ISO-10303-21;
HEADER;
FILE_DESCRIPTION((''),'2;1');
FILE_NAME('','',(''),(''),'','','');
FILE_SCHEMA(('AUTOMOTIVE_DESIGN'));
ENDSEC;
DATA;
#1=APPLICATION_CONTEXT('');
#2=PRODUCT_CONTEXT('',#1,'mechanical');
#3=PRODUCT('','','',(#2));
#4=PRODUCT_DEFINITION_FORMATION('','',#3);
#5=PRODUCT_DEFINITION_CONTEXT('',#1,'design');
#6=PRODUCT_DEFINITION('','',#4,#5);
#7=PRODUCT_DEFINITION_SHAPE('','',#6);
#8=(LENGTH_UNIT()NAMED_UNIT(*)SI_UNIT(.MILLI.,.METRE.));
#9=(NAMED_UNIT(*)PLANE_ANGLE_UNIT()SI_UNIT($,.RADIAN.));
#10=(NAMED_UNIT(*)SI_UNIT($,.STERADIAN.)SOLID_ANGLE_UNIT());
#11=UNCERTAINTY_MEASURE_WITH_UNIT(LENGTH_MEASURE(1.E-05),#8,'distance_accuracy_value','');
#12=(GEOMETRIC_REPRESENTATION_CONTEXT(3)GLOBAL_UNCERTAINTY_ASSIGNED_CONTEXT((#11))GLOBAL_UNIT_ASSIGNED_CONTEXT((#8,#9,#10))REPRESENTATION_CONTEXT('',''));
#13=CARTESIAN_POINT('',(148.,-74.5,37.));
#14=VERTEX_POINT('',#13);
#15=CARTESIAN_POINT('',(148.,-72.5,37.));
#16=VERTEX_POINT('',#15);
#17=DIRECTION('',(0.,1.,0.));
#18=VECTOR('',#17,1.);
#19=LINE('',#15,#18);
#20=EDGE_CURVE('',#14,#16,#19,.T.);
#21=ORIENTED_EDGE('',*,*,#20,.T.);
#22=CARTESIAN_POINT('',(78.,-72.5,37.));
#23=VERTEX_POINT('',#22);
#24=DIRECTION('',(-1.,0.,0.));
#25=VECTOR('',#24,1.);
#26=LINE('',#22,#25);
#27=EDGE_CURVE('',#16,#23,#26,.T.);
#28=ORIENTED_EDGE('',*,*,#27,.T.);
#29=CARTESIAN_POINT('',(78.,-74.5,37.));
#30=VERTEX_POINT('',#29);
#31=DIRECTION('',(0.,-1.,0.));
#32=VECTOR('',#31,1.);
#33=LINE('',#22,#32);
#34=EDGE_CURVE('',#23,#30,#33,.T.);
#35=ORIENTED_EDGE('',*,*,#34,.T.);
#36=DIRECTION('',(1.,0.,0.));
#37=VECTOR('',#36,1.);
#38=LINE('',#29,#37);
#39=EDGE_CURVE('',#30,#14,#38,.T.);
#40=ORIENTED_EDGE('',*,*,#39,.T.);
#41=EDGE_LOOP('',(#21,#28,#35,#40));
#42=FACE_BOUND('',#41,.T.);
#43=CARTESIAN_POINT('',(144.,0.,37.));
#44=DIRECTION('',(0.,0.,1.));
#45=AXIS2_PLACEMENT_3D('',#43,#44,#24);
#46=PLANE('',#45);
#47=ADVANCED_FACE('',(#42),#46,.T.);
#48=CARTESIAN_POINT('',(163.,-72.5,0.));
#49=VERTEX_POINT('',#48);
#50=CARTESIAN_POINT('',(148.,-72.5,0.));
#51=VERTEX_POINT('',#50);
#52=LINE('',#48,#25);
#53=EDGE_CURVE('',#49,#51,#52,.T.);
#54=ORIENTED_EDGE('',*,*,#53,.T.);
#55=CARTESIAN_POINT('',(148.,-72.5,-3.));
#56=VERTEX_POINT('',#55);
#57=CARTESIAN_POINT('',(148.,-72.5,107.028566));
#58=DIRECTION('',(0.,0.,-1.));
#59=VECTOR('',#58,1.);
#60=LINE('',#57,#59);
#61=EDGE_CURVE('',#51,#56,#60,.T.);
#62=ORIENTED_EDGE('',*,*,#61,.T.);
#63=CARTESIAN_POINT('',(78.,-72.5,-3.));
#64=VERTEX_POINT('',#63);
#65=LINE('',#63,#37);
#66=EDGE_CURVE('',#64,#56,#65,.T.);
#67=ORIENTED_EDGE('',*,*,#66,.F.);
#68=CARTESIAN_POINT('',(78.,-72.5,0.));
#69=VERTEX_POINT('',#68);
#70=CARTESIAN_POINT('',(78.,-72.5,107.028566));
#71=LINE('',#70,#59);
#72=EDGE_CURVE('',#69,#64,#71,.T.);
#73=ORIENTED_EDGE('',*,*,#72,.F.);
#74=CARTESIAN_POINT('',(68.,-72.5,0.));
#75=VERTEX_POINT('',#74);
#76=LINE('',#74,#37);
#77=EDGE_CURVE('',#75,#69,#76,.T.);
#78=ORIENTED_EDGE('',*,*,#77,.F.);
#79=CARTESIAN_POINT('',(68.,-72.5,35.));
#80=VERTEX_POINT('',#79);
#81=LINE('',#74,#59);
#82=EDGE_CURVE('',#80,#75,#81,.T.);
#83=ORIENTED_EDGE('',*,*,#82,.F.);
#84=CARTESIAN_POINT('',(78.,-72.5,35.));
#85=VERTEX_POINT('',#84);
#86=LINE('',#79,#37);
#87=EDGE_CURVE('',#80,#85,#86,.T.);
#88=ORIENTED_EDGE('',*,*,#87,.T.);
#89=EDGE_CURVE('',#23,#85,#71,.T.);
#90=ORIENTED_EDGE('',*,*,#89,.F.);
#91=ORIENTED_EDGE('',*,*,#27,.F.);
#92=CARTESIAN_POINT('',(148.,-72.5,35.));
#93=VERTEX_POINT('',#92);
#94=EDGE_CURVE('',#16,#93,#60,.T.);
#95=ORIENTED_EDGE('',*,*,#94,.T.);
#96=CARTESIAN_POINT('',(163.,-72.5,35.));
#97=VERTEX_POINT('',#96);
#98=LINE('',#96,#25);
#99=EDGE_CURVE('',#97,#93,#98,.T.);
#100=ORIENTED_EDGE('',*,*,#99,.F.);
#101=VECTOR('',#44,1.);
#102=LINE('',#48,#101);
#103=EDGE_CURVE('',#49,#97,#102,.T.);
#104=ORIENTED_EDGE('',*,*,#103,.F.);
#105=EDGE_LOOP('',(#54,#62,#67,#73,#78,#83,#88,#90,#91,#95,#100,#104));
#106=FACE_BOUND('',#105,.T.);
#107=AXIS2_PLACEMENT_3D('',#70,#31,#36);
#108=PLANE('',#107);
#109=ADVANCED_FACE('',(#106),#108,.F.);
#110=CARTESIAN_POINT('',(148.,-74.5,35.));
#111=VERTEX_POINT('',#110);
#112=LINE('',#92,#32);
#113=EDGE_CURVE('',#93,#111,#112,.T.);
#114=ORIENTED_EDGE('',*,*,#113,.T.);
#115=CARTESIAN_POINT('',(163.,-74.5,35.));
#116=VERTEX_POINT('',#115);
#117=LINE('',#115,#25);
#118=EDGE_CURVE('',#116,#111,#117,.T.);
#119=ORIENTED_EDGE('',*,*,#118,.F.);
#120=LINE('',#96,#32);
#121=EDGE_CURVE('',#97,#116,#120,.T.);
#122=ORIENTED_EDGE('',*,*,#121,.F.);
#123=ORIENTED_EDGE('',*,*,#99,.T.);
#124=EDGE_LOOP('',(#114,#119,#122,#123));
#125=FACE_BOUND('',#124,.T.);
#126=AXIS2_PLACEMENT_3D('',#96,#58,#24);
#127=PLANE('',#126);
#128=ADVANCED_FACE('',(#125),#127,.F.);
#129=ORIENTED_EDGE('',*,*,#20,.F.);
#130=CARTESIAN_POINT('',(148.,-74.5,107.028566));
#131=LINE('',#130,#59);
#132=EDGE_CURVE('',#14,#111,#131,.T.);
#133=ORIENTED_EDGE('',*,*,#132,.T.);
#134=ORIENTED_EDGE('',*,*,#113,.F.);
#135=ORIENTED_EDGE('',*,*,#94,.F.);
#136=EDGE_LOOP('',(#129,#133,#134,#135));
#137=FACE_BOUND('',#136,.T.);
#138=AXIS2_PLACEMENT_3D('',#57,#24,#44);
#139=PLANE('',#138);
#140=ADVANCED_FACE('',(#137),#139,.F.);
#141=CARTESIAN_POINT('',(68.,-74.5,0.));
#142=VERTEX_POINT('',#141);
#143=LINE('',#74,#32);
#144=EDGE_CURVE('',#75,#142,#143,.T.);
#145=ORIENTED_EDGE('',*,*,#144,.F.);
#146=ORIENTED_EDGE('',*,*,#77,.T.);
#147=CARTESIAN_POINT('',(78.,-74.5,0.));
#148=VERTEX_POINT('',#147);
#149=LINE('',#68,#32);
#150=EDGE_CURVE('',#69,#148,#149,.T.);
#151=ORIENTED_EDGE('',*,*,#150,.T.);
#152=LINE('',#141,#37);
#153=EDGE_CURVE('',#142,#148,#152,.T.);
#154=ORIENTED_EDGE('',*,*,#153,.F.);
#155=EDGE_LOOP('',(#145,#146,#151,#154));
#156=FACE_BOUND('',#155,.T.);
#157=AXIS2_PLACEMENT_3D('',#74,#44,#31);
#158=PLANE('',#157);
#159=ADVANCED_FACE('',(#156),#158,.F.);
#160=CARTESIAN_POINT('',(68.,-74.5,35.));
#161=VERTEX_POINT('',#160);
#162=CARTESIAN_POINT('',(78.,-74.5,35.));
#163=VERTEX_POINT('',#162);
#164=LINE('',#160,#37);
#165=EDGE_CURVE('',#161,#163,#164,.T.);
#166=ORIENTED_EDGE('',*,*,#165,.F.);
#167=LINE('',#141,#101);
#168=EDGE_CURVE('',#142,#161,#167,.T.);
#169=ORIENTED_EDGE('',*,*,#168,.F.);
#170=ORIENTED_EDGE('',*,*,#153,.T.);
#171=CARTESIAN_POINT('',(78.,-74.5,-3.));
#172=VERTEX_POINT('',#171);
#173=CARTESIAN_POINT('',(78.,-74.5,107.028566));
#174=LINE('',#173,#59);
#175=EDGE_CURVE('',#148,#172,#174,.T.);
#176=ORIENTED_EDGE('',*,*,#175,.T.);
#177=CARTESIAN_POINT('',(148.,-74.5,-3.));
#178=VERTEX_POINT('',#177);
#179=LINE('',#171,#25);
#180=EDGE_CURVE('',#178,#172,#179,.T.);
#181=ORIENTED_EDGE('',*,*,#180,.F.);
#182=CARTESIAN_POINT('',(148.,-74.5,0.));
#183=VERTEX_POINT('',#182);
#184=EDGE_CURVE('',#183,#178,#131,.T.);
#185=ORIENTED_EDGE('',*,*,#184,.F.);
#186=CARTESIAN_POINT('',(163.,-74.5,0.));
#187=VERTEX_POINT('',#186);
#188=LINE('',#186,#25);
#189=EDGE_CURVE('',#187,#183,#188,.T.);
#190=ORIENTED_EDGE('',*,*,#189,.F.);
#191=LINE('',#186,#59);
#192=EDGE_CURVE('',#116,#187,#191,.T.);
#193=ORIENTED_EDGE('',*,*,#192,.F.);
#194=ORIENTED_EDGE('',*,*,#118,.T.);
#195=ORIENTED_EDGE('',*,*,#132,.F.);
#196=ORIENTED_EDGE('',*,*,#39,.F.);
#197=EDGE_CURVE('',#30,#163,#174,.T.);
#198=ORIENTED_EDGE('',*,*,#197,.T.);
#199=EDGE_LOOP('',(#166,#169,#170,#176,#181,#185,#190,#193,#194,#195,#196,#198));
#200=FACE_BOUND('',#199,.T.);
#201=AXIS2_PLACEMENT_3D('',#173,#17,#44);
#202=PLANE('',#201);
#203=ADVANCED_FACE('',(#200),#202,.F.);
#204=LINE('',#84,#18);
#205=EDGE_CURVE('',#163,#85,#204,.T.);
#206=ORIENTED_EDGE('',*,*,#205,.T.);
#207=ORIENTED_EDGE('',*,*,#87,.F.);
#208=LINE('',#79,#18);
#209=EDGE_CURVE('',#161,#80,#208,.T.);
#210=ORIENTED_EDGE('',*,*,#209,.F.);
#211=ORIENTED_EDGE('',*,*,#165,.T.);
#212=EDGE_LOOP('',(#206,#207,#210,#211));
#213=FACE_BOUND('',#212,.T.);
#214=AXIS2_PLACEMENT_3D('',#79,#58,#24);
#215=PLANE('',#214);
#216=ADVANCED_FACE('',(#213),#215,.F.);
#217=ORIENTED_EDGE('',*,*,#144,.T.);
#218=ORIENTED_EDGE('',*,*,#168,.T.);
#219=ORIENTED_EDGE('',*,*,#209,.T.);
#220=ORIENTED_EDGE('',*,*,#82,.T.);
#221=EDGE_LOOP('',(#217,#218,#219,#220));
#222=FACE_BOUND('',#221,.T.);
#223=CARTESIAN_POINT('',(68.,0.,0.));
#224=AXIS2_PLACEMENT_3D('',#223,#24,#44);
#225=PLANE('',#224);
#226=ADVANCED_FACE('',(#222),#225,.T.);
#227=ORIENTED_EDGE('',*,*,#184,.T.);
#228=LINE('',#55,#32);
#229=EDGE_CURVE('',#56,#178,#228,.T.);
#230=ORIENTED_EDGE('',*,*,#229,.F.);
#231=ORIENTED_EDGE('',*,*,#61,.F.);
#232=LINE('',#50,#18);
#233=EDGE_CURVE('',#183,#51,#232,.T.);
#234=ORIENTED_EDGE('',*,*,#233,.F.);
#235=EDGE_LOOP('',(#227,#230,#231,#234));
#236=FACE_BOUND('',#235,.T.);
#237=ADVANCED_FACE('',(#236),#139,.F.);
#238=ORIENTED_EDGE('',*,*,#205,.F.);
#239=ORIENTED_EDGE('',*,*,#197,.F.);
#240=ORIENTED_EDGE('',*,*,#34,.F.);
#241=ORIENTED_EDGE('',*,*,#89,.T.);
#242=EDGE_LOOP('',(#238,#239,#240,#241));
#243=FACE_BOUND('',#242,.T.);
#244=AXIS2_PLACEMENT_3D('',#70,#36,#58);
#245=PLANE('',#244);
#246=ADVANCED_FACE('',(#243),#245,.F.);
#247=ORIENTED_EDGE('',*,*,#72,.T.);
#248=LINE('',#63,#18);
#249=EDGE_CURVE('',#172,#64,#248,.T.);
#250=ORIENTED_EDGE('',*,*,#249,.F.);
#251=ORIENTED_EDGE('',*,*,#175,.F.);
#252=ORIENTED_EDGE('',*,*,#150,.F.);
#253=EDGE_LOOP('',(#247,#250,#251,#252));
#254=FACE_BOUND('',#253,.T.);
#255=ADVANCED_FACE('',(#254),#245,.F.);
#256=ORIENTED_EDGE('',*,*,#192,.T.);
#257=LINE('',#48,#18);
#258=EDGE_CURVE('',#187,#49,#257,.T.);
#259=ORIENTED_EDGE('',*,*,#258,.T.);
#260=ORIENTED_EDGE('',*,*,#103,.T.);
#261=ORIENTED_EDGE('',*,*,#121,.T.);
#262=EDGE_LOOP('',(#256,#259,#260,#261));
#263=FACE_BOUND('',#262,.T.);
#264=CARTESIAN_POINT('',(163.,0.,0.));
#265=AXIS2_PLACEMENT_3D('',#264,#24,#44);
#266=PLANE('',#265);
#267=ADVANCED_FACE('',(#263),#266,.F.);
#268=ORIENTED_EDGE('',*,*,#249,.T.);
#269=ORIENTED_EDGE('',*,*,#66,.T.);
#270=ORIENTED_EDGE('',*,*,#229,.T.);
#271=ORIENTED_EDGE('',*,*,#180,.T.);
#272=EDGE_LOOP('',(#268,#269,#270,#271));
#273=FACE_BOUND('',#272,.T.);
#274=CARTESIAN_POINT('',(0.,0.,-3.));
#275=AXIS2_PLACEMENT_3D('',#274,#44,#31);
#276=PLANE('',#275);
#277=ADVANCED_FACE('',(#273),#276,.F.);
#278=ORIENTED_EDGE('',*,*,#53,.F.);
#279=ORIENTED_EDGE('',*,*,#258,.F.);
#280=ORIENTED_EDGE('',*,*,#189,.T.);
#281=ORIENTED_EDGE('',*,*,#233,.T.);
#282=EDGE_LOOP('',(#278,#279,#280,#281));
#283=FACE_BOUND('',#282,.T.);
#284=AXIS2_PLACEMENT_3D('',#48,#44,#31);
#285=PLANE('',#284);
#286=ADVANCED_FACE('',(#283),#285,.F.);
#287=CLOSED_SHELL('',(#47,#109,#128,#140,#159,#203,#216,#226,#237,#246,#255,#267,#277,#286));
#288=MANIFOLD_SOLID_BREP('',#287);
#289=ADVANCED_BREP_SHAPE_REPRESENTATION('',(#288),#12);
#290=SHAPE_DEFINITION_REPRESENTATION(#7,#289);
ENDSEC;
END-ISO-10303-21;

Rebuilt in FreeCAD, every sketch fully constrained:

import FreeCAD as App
import Part
import Sketcher

V = App.Vector
Q = App.Units.Quantity

doc = App.newDocument("Part")
body = doc.addObject("PartDesign::Body", "Body")

sketch1 = body.newObject("Sketcher::SketchObject", "Sketch")
sketch1.AttachmentSupport = (doc.getObject("XY_Plane"), [""])
sketch1.MapMode = "FlatFace"
sketch1.addGeometry([
    Part.LineSegment(V(78, -72.5, 0), V(78, -74.5, 0)),
    Part.LineSegment(V(78, -74.5, 0), V(148, -74.5, 0)),
    Part.LineSegment(V(148, -74.5, 0), V(148, -72.5, 0)),
    Part.LineSegment(V(148, -72.5, 0), V(78, -72.5, 0)),
], False)
sketch1.addConstraint([
    Sketcher.Constraint("Coincident", 0, 2, 1, 1),
    Sketcher.Constraint("Coincident", 1, 2, 2, 1),
    Sketcher.Constraint("Coincident", 2, 2, 3, 1),
    Sketcher.Constraint("Coincident", 3, 2, 0, 1),
    Sketcher.Constraint("Vertical", 0),
    Sketcher.Constraint("Horizontal", 1),
    Sketcher.Constraint("Vertical", 2),
    Sketcher.Constraint("Horizontal", 3),
    Sketcher.Constraint("DistanceX", 1, 1, 1, 2, Q("70 mm")),
    Sketcher.Constraint("DistanceY", 0, 2, 0, 1, Q("2 mm")),
    Sketcher.Constraint("DistanceX", -1, 1, 0, 2, Q("78 mm")),
    Sketcher.Constraint("DistanceY", 0, 2, -1, 1, Q("74.5 mm")),
])
pad1 = body.newObject("PartDesign::Pad", "Pad")
pad1.Profile = sketch1
pad1.Type = "TwoLengths"
pad1.Length = 37
pad1.Length2 = 3

sketch2 = body.newObject("Sketcher::SketchObject", "Sketch001")
sketch2.AttachmentSupport = (doc.getObject("YZ_Plane"), [""])
sketch2.MapMode = "FlatFace"
sketch2.AttachmentOffset = App.Placement(V(0, 0, 148), App.Rotation())
sketch2.addGeometry([
    Part.LineSegment(V(-72.5, 35, 0), V(-74.5, 35, 0)),
    Part.LineSegment(V(-74.5, 35, 0), V(-74.5, 0, 0)),
    Part.LineSegment(V(-74.5, 0, 0), V(-72.5, 0, 0)),
    Part.LineSegment(V(-72.5, 0, 0), V(-72.5, 35, 0)),
], False)
sketch2.addConstraint([
    Sketcher.Constraint("Coincident", 0, 2, 1, 1),
    Sketcher.Constraint("Coincident", 1, 2, 2, 1),
    Sketcher.Constraint("Coincident", 2, 2, 3, 1),
    Sketcher.Constraint("Coincident", 3, 2, 0, 1),
    Sketcher.Constraint("Horizontal", 0),
    Sketcher.Constraint("Vertical", 1),
    Sketcher.Constraint("Horizontal", 2),
    Sketcher.Constraint("Vertical", 3),
    Sketcher.Constraint("PointOnObject", 1, 2, -1),
    Sketcher.Constraint("DistanceX", 0, 2, 0, 1, Q("2 mm")),
    Sketcher.Constraint("DistanceY", 1, 2, 1, 1, Q("35 mm")),
    Sketcher.Constraint("DistanceX", 0, 2, -1, 1, Q("74.5 mm")),
])
pad2 = body.newObject("PartDesign::Pad", "Pad001")
pad2.Profile = sketch2
pad2.Length = 15

sketch3 = body.newObject("Sketcher::SketchObject", "Sketch002")
sketch3.AttachmentSupport = (doc.getObject("YZ_Plane"), [""])
sketch3.MapMode = "FlatFace"
sketch3.AttachmentOffset = App.Placement(V(0, 0, 78), App.Rotation())
sketch3.addGeometry([
    Part.LineSegment(V(-72.5, 0, 0), V(-74.5, 0, 0)),
    Part.LineSegment(V(-74.5, 0, 0), V(-74.5, 35, 0)),
    Part.LineSegment(V(-74.5, 35, 0), V(-72.5, 35, 0)),
    Part.LineSegment(V(-72.5, 35, 0), V(-72.5, 0, 0)),
], False)
sketch3.addConstraint([
    Sketcher.Constraint("Coincident", 0, 2, 1, 1),
    Sketcher.Constraint("Coincident", 1, 2, 2, 1),
    Sketcher.Constraint("Coincident", 2, 2, 3, 1),
    Sketcher.Constraint("Coincident", 3, 2, 0, 1),
    Sketcher.Constraint("Horizontal", 0),
    Sketcher.Constraint("Vertical", 1),
    Sketcher.Constraint("Horizontal", 2),
    Sketcher.Constraint("Vertical", 3),
    Sketcher.Constraint("PointOnObject", 0, 2, -1),
    Sketcher.Constraint("DistanceX", 0, 2, 0, 1, Q("2 mm")),
    Sketcher.Constraint("DistanceY", 1, 1, 1, 2, Q("35 mm")),
    Sketcher.Constraint("DistanceX", 0, 2, -1, 1, Q("74.5 mm")),
])
pad3 = body.newObject("PartDesign::Pad", "Pad002")
pad3.Profile = sketch3
pad3.Length = 10
pad3.Reversed = True

doc.recompute()
